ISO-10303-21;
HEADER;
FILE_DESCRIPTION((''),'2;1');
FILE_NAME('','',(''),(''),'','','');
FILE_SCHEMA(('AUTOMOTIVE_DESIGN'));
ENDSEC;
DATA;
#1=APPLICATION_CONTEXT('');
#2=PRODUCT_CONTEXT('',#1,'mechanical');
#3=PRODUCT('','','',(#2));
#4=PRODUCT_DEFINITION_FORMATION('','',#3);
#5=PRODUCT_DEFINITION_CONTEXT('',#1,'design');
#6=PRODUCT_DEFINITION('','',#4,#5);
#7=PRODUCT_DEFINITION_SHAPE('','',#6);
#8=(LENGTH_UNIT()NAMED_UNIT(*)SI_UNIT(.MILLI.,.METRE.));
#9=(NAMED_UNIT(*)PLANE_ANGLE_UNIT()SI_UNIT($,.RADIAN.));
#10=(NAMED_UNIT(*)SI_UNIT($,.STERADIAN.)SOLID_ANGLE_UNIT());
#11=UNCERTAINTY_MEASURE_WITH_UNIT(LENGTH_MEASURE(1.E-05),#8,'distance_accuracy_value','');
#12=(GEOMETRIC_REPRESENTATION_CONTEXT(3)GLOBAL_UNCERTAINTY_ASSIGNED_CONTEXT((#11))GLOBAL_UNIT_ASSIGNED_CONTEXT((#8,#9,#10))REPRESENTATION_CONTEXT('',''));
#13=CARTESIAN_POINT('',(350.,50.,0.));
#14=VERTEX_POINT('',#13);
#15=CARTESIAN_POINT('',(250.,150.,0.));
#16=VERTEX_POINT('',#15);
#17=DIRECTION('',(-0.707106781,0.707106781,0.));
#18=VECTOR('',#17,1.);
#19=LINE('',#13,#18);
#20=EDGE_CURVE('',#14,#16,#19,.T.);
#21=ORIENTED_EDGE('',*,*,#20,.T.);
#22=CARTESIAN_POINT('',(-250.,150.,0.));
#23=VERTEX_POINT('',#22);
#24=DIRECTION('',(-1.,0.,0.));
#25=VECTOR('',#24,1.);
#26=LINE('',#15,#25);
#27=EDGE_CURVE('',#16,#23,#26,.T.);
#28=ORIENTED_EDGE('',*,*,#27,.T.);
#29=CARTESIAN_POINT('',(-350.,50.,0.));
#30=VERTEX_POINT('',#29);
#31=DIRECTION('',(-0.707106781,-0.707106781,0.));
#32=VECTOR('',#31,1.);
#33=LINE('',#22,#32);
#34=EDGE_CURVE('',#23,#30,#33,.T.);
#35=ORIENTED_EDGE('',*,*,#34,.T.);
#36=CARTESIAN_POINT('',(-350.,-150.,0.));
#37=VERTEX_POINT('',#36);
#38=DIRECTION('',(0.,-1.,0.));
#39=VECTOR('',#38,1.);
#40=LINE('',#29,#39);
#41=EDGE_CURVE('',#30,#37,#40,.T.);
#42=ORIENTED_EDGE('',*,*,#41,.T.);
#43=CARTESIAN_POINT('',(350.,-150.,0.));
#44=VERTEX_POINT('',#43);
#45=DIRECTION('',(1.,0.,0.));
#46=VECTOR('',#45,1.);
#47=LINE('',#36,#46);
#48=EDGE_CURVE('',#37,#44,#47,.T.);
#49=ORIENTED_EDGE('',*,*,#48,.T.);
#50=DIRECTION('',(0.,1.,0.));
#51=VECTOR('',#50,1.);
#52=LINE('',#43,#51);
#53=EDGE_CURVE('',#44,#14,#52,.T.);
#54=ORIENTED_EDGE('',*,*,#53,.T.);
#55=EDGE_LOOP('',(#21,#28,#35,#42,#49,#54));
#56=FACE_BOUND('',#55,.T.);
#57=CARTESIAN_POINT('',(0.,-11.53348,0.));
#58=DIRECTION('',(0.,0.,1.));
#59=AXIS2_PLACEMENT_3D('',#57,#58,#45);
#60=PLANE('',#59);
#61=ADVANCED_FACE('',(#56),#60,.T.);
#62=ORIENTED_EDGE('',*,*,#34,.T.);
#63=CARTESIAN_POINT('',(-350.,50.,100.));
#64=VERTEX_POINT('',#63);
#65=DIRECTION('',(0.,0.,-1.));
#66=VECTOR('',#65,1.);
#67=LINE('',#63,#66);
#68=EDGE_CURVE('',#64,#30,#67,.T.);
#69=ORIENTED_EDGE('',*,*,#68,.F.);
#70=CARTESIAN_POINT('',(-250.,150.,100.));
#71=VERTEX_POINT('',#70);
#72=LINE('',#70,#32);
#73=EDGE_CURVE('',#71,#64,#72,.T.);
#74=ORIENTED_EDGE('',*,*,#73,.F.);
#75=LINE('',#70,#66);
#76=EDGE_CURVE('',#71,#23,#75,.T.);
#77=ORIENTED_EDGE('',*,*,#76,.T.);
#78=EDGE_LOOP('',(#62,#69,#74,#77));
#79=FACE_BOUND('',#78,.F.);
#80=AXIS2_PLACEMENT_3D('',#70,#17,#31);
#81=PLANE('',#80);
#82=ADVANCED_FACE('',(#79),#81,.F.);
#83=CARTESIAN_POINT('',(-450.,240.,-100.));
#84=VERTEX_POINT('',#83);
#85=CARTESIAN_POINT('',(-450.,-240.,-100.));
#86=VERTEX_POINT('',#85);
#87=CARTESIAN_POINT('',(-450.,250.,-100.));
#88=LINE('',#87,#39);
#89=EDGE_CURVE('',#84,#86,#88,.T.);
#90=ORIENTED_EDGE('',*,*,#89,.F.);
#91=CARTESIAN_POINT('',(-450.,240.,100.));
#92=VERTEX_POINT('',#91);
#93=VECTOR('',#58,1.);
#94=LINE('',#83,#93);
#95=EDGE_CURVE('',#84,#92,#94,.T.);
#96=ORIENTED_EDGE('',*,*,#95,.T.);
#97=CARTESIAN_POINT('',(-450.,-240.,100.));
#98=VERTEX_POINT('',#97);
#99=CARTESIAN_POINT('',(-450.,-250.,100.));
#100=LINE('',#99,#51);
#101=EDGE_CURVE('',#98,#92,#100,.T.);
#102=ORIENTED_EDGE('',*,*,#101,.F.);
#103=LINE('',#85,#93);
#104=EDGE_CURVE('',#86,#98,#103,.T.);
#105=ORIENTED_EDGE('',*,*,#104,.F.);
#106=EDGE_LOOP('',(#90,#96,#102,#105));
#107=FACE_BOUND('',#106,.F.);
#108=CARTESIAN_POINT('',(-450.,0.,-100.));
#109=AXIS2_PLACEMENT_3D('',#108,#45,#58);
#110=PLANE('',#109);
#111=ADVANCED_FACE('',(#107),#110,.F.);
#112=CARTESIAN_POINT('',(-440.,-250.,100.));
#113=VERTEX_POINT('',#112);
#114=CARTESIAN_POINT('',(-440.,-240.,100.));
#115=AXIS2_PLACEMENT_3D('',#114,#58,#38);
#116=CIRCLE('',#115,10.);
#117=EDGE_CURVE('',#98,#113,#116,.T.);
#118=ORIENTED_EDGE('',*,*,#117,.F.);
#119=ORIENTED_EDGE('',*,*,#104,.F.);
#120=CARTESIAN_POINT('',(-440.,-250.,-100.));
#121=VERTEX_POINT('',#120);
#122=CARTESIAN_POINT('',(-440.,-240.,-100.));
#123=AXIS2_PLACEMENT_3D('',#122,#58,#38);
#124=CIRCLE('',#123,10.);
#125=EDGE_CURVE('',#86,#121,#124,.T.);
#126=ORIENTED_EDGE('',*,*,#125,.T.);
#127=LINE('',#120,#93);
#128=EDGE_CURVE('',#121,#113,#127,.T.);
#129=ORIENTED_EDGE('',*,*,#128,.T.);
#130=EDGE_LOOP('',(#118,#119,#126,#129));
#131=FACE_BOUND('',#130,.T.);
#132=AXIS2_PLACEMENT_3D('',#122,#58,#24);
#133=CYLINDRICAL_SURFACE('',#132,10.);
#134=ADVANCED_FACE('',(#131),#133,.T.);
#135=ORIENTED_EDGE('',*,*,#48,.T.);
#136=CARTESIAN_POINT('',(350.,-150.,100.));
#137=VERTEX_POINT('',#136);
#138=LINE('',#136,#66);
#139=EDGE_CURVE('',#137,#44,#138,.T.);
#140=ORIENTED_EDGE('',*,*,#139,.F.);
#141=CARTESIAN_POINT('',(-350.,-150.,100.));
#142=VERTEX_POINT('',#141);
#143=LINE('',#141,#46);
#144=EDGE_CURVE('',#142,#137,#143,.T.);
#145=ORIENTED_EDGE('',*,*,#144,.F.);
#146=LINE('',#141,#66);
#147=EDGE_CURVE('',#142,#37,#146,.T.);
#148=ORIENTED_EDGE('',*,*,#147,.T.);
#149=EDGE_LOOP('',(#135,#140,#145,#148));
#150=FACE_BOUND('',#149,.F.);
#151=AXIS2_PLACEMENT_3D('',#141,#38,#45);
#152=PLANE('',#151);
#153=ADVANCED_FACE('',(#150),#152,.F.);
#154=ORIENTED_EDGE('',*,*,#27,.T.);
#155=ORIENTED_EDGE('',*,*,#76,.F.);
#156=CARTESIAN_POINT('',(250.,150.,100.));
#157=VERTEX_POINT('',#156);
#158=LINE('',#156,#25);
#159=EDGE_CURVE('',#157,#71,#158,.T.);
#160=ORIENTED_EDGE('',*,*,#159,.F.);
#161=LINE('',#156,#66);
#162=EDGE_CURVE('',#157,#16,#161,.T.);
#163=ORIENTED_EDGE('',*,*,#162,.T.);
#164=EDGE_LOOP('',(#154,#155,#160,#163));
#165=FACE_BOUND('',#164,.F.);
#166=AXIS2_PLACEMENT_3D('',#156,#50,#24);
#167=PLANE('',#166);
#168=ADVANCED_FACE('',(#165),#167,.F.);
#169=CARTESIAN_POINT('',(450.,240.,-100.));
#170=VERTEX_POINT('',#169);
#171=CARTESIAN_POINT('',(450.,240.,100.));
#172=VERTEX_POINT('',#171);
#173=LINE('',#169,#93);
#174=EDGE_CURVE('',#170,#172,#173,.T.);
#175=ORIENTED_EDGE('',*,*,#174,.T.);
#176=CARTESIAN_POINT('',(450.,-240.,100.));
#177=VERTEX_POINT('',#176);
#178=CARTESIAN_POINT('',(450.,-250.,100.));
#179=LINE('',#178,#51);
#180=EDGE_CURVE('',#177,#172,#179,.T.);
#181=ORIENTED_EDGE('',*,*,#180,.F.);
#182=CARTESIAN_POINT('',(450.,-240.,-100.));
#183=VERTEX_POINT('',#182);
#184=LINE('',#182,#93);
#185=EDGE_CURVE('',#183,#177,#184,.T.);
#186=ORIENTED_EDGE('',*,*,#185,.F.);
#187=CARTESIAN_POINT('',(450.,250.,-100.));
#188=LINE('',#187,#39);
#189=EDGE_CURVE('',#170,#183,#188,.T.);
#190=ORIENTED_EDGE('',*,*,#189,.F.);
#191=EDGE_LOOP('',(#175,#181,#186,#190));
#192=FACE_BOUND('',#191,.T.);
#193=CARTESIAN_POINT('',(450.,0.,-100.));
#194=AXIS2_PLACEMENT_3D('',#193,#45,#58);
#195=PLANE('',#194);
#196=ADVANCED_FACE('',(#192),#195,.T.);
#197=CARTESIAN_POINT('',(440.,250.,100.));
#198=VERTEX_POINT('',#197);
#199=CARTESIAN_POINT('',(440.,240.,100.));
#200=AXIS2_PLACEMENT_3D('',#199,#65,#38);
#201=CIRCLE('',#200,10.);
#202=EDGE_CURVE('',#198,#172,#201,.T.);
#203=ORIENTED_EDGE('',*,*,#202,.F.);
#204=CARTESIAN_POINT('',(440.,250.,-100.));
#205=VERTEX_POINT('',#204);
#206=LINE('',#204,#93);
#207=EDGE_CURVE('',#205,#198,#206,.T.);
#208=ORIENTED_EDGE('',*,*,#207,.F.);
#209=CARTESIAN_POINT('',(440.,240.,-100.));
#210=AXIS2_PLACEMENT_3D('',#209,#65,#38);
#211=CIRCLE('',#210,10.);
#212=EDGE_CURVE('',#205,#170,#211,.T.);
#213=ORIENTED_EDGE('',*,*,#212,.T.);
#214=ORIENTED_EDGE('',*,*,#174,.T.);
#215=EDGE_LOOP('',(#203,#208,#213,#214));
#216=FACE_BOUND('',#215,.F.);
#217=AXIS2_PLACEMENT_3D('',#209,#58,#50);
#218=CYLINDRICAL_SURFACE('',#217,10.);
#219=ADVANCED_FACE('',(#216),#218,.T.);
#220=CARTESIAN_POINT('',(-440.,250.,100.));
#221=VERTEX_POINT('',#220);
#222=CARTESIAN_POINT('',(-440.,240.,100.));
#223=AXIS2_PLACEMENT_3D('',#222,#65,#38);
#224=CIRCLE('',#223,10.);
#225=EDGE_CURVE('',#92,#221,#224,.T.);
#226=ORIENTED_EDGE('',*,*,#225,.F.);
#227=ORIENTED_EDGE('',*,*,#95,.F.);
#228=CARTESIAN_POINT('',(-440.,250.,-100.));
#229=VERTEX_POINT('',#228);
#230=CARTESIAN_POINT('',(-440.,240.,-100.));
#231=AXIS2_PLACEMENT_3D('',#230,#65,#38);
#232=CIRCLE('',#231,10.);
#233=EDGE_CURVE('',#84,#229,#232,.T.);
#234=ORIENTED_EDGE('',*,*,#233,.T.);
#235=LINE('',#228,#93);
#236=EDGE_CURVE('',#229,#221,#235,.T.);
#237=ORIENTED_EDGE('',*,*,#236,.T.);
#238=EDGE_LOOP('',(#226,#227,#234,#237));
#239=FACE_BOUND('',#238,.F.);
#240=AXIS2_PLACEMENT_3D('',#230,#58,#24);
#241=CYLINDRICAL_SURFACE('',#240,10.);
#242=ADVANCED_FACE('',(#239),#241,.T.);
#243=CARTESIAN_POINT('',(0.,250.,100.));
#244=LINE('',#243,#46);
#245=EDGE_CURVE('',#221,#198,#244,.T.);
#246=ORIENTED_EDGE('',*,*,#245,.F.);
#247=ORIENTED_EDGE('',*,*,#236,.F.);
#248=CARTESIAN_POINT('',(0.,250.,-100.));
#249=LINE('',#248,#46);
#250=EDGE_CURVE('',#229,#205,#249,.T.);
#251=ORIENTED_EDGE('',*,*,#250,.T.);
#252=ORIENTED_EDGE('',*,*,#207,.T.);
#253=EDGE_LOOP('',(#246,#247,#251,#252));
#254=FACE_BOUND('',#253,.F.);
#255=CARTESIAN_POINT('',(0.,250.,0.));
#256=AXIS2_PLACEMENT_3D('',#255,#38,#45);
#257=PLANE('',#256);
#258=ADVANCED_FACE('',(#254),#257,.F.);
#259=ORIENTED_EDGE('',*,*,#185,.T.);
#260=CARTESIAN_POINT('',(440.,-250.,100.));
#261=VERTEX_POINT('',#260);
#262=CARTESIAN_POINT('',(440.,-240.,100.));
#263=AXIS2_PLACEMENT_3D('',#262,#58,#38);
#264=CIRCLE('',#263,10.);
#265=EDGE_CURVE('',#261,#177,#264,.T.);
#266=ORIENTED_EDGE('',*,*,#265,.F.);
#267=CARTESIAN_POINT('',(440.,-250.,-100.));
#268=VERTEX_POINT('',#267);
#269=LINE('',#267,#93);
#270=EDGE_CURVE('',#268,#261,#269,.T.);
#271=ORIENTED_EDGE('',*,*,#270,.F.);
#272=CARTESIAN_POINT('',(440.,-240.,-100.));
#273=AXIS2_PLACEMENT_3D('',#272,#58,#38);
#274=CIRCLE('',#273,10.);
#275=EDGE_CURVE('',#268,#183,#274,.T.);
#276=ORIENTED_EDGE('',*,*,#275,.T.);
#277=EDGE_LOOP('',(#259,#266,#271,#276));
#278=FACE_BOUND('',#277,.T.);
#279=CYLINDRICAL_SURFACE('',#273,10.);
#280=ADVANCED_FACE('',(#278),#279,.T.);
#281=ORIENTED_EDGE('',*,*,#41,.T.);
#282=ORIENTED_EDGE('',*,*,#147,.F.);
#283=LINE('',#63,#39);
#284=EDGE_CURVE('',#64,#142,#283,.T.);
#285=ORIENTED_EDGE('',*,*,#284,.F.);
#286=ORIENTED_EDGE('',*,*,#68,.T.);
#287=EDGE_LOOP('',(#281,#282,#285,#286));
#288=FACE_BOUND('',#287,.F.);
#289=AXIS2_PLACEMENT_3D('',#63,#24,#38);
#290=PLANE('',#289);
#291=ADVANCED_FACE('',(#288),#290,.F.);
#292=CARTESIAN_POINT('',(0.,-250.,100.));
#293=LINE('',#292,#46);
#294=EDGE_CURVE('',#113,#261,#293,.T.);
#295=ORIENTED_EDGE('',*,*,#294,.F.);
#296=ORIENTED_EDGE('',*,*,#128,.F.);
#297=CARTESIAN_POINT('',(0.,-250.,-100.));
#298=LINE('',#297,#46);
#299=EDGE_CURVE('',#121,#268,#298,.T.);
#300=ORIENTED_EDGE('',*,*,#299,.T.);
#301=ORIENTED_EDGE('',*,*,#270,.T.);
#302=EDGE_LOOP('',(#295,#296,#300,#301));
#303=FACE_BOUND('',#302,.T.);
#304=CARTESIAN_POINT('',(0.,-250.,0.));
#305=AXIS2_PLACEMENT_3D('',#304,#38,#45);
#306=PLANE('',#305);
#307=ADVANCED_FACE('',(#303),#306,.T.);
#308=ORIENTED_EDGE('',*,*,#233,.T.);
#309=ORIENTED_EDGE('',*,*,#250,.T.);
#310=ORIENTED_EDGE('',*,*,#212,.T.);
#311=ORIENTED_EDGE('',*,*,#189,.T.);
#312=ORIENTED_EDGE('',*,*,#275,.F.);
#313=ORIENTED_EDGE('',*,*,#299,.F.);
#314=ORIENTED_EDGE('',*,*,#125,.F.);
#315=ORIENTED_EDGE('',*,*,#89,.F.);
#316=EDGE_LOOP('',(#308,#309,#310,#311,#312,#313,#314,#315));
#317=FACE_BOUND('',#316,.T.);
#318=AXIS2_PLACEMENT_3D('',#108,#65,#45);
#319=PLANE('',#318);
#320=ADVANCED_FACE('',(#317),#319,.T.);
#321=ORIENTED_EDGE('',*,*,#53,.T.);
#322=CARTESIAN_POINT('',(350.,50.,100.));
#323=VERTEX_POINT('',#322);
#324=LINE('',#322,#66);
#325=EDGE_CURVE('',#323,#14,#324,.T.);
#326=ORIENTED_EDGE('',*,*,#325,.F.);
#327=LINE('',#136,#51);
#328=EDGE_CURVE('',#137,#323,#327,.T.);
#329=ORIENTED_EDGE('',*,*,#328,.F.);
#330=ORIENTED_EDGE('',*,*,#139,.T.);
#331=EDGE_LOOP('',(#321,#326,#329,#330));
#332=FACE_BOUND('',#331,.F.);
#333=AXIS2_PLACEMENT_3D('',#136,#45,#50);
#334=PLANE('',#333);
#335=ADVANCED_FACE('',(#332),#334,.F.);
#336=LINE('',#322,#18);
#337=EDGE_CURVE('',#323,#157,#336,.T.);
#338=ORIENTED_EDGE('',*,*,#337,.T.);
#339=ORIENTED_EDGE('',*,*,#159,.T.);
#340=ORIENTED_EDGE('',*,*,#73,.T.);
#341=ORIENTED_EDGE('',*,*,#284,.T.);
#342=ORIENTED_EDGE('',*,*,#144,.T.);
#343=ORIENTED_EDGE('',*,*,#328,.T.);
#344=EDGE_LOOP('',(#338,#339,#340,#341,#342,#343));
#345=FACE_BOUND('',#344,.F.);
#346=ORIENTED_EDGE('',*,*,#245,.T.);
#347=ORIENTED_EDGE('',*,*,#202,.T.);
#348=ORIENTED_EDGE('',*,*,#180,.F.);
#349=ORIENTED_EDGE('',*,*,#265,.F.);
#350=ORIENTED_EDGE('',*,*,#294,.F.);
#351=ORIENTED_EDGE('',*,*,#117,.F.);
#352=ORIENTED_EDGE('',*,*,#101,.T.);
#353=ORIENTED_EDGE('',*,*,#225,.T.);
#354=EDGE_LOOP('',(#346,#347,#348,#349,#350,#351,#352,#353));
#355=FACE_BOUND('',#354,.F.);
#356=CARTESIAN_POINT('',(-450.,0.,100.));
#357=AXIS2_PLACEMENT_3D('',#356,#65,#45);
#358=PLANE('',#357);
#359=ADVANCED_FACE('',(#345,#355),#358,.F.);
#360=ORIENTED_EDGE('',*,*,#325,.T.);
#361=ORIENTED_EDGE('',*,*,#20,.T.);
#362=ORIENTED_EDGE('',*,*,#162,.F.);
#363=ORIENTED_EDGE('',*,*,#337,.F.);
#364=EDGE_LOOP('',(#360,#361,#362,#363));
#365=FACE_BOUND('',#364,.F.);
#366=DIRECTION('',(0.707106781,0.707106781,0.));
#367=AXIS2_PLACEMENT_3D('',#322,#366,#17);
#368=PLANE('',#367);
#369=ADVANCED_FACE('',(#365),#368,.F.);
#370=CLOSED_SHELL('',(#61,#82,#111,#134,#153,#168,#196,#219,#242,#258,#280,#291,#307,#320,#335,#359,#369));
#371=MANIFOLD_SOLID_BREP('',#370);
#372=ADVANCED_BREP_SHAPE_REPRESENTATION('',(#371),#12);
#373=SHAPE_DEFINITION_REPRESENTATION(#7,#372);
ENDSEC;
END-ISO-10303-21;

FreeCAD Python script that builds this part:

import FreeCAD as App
import Part
import Sketcher
from FreeCAD import Vector


def edges_at(feature, points):
    """Names of the edges that pass closest to the given points."""
    edges = feature.Shape.Edges
    near = lambda p: min(range(len(edges)), key=lambda i: edges[i].distToShape(Part.Vertex(*p))[0])
    return sorted({f"Edge{near(p) + 1}" for p in points})

doc = App.newDocument("Part")
params = doc.addObject("Spreadsheet::Sheet", "Params")
for row, (alias, value) in enumerate([
    ("sketch1_width", "900 mm"),
    ("sketch1_height", "200 mm"),
    ("pad1_length", "500 mm"),
    ("sketch2_width", "700 mm"),
    ("sketch2_width2", "500 mm"),
    ("sketch2_height", "200 mm"),
    ("pocket1_length", "100 mm"),
    ("fillet_radius", "10 mm"),
], start=1):
    params.set(f"A{row}", alias)
    params.set(f"B{row}", "=" + value)
    params.setAlias(f"B{row}", alias)

body = doc.addObject("PartDesign::Body", "Body")

# Sketch on XZ plane
sketch1 = body.newObject("Sketcher::SketchObject", "Sketch")
sketch1.AttachmentSupport = (doc.getObject("XZ_Plane"), [""])
sketch1.MapMode = "FlatFace"
sketch1.addGeometry([
    Part.LineSegment(Vector(-450, 100, 0), Vector(-450, -100, 0)),
    Part.LineSegment(Vector(-450, -100, 0), Vector(450, -100, 0)),
    Part.LineSegment(Vector(450, -100, 0), Vector(450, 100, 0)),
    Part.LineSegment(Vector(450, 100, 0), Vector(-450, 100, 0)),
], False)
sketch1.addConstraint([
    Sketcher.Constraint("Coincident", 0, 2, 1, 1),
    Sketcher.Constraint("Coincident", 1, 2, 2, 1),
    Sketcher.Constraint("Coincident", 2, 2, 3, 1),
    Sketcher.Constraint("Coincident", 3, 2, 0, 1),
    Sketcher.Constraint("Vertical", 0),
    Sketcher.Constraint("Horizontal", 1),
    Sketcher.Constraint("Vertical", 2),
    Sketcher.Constraint("Horizontal", 3),
    Sketcher.Constraint("Symmetric", 0, 2, 2, 2, -1, 1),
    Sketcher.Constraint("DistanceX", 1, 1, 1, 2, 900.0),
    Sketcher.Constraint("DistanceY", 0, 2, 0, 1, 200.0),
])
sketch1.setExpression("Constraints[9]", "Params.sketch1_width")
sketch1.setExpression("Constraints[10]", "Params.sketch1_height")
pad1 = body.newObject("PartDesign::Pad", "Pad")
pad1.Profile = sketch1
pad1.setExpression("Length", "Params.pad1_length")
pad1.Midplane = True

# Sketch on XY plane
sketch2 = body.newObject("Sketcher::SketchObject", "Sketch001")
sketch2.AttachmentSupport = (doc.getObject("XY_Plane"), [""])
sketch2.MapMode = "FlatFace"
sketch2.AttachmentOffset = App.Placement(Vector(0, 0, 100), App.Rotation())
sketch2.addGeometry([
    Part.LineSegment(Vector(-350, -150, 0), Vector(350, -150, 0)),  # 0
    Part.LineSegment(Vector(350, -150, 0), Vector(350, 50, 0)),  # 1
    Part.LineSegment(Vector(350, 50, 0), Vector(250, 150, 0)),  # 2
    Part.LineSegment(Vector(250, 150, 0), Vector(-250, 150, 0)),  # 3
    Part.LineSegment(Vector(-250, 150, 0), Vector(-350, 50, 0)),  # 4
    Part.LineSegment(Vector(-350, 50, 0), Vector(-350, -150, 0)),  # 5
], False)
sketch2.addConstraint([
    Sketcher.Constraint("Coincident", 0, 2, 1, 1),
    Sketcher.Constraint("Coincident", 1, 2, 2, 1),
    Sketcher.Constraint("Coincident", 2, 2, 3, 1),
    Sketcher.Constraint("Coincident", 3, 2, 4, 1),
    Sketcher.Constraint("Coincident", 4, 2, 5, 1),
    Sketcher.Constraint("Coincident", 5, 2, 0, 1),
    Sketcher.Constraint("Horizontal", 0),
    Sketcher.Constraint("Vertical", 1),
    Sketcher.Constraint("Horizontal", 3),
    Sketcher.Constraint("Vertical", 5),
    Sketcher.Constraint("Symmetric", 1, 2, 4, 2, -2),
    Sketcher.Constraint("Perpendicular", 2, 4),
    Sketcher.Constraint("Equal", 2, 4),
    Sketcher.Constraint("DistanceX", 0, 1, 0, 2, 700.0),
    Sketcher.Constraint("DistanceX", 3, 2, 3, 1, 500.0),
    Sketcher.Constraint("DistanceY", 1, 1, 1, 2, 200.0),
    Sketcher.Constraint("DistanceY", 0, 2, -1, 1, 150.0),
])
sketch2.setExpression("Constraints[13]", "Params.sketch2_width")
sketch2.setExpression("Constraints[14]", "Params.sketch2_width2")
sketch2.setExpression("Constraints[15]", "Params.sketch2_height")
pocket1 = body.newObject("PartDesign::Pocket", "Pocket")
pocket1.Profile = sketch2
pocket1.setExpression("Length", "Params.pocket1_length")
doc.recompute()

fillet = body.newObject("PartDesign::Fillet", "Fillet")
fillet.Base = (pocket1, edges_at(pocket1, [
    (450, -250, 0),
    (-450, -250, 0),
    (450, 250, 0),
    (-450, 250, 0),
]))
fillet.setExpression("Radius", "Params.fillet_radius")

doc.recompute()
